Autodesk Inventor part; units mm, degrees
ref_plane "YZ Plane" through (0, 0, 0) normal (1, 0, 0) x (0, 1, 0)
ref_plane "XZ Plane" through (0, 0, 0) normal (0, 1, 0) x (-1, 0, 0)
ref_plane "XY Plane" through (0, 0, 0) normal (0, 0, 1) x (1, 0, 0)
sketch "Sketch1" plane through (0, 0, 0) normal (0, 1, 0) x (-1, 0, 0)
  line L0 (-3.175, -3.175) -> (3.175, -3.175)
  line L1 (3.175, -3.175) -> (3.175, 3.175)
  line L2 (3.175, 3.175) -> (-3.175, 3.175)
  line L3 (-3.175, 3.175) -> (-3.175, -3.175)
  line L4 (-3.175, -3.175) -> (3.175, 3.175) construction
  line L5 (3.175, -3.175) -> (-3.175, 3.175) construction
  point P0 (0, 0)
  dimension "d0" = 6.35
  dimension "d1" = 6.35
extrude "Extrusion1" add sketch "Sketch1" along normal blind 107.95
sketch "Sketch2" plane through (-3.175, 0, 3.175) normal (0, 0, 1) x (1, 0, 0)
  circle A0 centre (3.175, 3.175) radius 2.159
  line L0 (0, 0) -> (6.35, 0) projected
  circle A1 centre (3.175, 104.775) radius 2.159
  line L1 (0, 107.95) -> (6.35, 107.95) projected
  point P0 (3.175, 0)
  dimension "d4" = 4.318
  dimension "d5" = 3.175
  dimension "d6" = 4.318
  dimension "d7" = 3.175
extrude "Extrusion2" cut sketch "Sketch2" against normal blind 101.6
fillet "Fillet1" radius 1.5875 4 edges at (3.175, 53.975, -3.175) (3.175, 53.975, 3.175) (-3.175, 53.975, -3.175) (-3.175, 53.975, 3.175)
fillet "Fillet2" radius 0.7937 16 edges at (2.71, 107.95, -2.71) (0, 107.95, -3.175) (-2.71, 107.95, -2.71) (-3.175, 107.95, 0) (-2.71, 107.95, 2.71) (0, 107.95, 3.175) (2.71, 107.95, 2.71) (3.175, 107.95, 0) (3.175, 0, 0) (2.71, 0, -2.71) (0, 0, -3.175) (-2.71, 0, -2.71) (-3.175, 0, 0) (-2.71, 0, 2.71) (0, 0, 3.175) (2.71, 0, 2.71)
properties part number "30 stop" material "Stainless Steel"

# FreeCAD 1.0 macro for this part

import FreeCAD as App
import Part
import Sketcher
Q = App.Units.Quantity


def edges_at(feature, points):
    """Names of the edges that pass closest to the given points."""
    edges = feature.Shape.Edges
    near = lambda p: min(range(len(edges)), key=lambda i: edges[i].distToShape(Part.Vertex(*p))[0])
    return sorted({f"Edge{near(p) + 1}" for p in points})

doc = App.newDocument("Part")
body = doc.addObject("PartDesign::Body", "Body")

sketch1 = body.newObject("Sketcher::SketchObject", "Sketch")
sketch1.AttachmentSupport = (doc.getObject("XZ_Plane"), [""])
sketch1.MapMode = "FlatFace"
sketch1.addGeometry(Part.LineSegment(App.Vector(3, 3, 0), App.Vector(3, -3, 0)), False)
sketch1.addGeometry(Part.LineSegment(App.Vector(3, -3, 0), App.Vector(-3, -3, 0)), False)
sketch1.addGeometry(Part.LineSegment(App.Vector(-3, -3, 0), App.Vector(-3, 3, 0)), False)
sketch1.addGeometry(Part.LineSegment(App.Vector(-3, 3, 0), App.Vector(3, 3, 0)), False)
sketch1.addConstraint(Sketcher.Constraint("Coincident", 0, 2, 1, 1))
sketch1.addConstraint(Sketcher.Constraint("Coincident", 1, 2, 2, 1))
sketch1.addConstraint(Sketcher.Constraint("Coincident", 2, 2, 3, 1))
sketch1.addConstraint(Sketcher.Constraint("Coincident", 3, 2, 0, 1))
sketch1.addConstraint(Sketcher.Constraint("Vertical", 0))
sketch1.addConstraint(Sketcher.Constraint("Horizontal", 1))
sketch1.addConstraint(Sketcher.Constraint("Vertical", 2))
sketch1.addConstraint(Sketcher.Constraint("Horizontal", 3))
sketch1.addConstraint(Sketcher.Constraint("Symmetric", 0, 2, 2, 2, -1, 1))
sketch1.addConstraint(Sketcher.Constraint("Equal", 3, 0))
sketch1.addConstraint(Sketcher.Constraint("DistanceX", 1, 2, 1, 1, Q("0.25 in")))
pad1 = body.newObject("PartDesign::Pad", "Pad")
pad1.Profile = sketch1
pad1.Length = Q("4.25 in")
pad1.Reversed = True

sketch2 = body.newObject("Sketcher::SketchObject", "Sketch001")
sketch2.AttachmentSupport = (doc.getObject("XY_Plane"), [""])
sketch2.MapMode = "FlatFace"
sketch2.AttachmentOffset = App.Placement(App.Vector(0, 0, 0.125 * 25.4), App.Rotation())
sketch2.addGeometry(Part.Circle(App.Vector(0, 3.2, 0), App.Vector(0, 0, 1), 2.2), False)
sketch2.addGeometry(Part.Circle(App.Vector(0, 104.8, 0), App.Vector(0, 0, 1), 2.2), False)
sketch2.addConstraint(Sketcher.Constraint("Equal", 0, 1))
sketch2.addConstraint(Sketcher.Constraint("PointOnObject", 0, 3, -2))
sketch2.addConstraint(Sketcher.Constraint("PointOnObject", 1, 3, -2))
sketch2.addConstraint(Sketcher.Constraint("Diameter", 0, Q("0.17 in")))
sketch2.addConstraint(Sketcher.Constraint("DistanceY", -1, 1, 0, 3, Q("0.125 in")))
sketch2.addConstraint(Sketcher.Constraint("DistanceY", 0, 3, 1, 3, Q("4 in")))
pocket1 = body.newObject("PartDesign::Pocket", "Pocket")
pocket1.Profile = sketch2
pocket1.Length = Q("4 in")
doc.recompute()

fillet = body.newObject("PartDesign::Fillet", "Fillet")
fillet.Base = (pocket1, edges_at(pocket1, [
    (3.175, 53.975, -3.175),
    (3.175, 53.975, 3.175),
    (-3.175, 53.975, -3.175),
    (-3.175, 53.975, 3.175),
]))
fillet.Radius = Q("0.0625 in")
doc.recompute()

fillet2 = body.newObject("PartDesign::Fillet", "Fillet001")
fillet2.Base = (fillet, edges_at(fillet, [
    (2.71, 107.95, -2.71),
    (0, 107.95, -3.175),
    (-2.71, 107.95, -2.71),
    (-3.175, 107.95, 0),
    (-2.71, 107.95, 2.71),
    (0, 107.95, 3.175),
    (2.71, 107.95, 2.71),
    (3.175, 107.95, 0),
    (3.175, 0, 0),
    (2.71, 0, -2.71),
    (0, 0, -3.175),
    (-2.71, 0, -2.71),
    (-3.175, 0, 0),
    (-2.71, 0, 2.71),
    (0, 0, 3.175),
    (2.71, 0, 2.71),
]))
fillet2.Radius = Q("0.031248 in")

doc.recompute()
